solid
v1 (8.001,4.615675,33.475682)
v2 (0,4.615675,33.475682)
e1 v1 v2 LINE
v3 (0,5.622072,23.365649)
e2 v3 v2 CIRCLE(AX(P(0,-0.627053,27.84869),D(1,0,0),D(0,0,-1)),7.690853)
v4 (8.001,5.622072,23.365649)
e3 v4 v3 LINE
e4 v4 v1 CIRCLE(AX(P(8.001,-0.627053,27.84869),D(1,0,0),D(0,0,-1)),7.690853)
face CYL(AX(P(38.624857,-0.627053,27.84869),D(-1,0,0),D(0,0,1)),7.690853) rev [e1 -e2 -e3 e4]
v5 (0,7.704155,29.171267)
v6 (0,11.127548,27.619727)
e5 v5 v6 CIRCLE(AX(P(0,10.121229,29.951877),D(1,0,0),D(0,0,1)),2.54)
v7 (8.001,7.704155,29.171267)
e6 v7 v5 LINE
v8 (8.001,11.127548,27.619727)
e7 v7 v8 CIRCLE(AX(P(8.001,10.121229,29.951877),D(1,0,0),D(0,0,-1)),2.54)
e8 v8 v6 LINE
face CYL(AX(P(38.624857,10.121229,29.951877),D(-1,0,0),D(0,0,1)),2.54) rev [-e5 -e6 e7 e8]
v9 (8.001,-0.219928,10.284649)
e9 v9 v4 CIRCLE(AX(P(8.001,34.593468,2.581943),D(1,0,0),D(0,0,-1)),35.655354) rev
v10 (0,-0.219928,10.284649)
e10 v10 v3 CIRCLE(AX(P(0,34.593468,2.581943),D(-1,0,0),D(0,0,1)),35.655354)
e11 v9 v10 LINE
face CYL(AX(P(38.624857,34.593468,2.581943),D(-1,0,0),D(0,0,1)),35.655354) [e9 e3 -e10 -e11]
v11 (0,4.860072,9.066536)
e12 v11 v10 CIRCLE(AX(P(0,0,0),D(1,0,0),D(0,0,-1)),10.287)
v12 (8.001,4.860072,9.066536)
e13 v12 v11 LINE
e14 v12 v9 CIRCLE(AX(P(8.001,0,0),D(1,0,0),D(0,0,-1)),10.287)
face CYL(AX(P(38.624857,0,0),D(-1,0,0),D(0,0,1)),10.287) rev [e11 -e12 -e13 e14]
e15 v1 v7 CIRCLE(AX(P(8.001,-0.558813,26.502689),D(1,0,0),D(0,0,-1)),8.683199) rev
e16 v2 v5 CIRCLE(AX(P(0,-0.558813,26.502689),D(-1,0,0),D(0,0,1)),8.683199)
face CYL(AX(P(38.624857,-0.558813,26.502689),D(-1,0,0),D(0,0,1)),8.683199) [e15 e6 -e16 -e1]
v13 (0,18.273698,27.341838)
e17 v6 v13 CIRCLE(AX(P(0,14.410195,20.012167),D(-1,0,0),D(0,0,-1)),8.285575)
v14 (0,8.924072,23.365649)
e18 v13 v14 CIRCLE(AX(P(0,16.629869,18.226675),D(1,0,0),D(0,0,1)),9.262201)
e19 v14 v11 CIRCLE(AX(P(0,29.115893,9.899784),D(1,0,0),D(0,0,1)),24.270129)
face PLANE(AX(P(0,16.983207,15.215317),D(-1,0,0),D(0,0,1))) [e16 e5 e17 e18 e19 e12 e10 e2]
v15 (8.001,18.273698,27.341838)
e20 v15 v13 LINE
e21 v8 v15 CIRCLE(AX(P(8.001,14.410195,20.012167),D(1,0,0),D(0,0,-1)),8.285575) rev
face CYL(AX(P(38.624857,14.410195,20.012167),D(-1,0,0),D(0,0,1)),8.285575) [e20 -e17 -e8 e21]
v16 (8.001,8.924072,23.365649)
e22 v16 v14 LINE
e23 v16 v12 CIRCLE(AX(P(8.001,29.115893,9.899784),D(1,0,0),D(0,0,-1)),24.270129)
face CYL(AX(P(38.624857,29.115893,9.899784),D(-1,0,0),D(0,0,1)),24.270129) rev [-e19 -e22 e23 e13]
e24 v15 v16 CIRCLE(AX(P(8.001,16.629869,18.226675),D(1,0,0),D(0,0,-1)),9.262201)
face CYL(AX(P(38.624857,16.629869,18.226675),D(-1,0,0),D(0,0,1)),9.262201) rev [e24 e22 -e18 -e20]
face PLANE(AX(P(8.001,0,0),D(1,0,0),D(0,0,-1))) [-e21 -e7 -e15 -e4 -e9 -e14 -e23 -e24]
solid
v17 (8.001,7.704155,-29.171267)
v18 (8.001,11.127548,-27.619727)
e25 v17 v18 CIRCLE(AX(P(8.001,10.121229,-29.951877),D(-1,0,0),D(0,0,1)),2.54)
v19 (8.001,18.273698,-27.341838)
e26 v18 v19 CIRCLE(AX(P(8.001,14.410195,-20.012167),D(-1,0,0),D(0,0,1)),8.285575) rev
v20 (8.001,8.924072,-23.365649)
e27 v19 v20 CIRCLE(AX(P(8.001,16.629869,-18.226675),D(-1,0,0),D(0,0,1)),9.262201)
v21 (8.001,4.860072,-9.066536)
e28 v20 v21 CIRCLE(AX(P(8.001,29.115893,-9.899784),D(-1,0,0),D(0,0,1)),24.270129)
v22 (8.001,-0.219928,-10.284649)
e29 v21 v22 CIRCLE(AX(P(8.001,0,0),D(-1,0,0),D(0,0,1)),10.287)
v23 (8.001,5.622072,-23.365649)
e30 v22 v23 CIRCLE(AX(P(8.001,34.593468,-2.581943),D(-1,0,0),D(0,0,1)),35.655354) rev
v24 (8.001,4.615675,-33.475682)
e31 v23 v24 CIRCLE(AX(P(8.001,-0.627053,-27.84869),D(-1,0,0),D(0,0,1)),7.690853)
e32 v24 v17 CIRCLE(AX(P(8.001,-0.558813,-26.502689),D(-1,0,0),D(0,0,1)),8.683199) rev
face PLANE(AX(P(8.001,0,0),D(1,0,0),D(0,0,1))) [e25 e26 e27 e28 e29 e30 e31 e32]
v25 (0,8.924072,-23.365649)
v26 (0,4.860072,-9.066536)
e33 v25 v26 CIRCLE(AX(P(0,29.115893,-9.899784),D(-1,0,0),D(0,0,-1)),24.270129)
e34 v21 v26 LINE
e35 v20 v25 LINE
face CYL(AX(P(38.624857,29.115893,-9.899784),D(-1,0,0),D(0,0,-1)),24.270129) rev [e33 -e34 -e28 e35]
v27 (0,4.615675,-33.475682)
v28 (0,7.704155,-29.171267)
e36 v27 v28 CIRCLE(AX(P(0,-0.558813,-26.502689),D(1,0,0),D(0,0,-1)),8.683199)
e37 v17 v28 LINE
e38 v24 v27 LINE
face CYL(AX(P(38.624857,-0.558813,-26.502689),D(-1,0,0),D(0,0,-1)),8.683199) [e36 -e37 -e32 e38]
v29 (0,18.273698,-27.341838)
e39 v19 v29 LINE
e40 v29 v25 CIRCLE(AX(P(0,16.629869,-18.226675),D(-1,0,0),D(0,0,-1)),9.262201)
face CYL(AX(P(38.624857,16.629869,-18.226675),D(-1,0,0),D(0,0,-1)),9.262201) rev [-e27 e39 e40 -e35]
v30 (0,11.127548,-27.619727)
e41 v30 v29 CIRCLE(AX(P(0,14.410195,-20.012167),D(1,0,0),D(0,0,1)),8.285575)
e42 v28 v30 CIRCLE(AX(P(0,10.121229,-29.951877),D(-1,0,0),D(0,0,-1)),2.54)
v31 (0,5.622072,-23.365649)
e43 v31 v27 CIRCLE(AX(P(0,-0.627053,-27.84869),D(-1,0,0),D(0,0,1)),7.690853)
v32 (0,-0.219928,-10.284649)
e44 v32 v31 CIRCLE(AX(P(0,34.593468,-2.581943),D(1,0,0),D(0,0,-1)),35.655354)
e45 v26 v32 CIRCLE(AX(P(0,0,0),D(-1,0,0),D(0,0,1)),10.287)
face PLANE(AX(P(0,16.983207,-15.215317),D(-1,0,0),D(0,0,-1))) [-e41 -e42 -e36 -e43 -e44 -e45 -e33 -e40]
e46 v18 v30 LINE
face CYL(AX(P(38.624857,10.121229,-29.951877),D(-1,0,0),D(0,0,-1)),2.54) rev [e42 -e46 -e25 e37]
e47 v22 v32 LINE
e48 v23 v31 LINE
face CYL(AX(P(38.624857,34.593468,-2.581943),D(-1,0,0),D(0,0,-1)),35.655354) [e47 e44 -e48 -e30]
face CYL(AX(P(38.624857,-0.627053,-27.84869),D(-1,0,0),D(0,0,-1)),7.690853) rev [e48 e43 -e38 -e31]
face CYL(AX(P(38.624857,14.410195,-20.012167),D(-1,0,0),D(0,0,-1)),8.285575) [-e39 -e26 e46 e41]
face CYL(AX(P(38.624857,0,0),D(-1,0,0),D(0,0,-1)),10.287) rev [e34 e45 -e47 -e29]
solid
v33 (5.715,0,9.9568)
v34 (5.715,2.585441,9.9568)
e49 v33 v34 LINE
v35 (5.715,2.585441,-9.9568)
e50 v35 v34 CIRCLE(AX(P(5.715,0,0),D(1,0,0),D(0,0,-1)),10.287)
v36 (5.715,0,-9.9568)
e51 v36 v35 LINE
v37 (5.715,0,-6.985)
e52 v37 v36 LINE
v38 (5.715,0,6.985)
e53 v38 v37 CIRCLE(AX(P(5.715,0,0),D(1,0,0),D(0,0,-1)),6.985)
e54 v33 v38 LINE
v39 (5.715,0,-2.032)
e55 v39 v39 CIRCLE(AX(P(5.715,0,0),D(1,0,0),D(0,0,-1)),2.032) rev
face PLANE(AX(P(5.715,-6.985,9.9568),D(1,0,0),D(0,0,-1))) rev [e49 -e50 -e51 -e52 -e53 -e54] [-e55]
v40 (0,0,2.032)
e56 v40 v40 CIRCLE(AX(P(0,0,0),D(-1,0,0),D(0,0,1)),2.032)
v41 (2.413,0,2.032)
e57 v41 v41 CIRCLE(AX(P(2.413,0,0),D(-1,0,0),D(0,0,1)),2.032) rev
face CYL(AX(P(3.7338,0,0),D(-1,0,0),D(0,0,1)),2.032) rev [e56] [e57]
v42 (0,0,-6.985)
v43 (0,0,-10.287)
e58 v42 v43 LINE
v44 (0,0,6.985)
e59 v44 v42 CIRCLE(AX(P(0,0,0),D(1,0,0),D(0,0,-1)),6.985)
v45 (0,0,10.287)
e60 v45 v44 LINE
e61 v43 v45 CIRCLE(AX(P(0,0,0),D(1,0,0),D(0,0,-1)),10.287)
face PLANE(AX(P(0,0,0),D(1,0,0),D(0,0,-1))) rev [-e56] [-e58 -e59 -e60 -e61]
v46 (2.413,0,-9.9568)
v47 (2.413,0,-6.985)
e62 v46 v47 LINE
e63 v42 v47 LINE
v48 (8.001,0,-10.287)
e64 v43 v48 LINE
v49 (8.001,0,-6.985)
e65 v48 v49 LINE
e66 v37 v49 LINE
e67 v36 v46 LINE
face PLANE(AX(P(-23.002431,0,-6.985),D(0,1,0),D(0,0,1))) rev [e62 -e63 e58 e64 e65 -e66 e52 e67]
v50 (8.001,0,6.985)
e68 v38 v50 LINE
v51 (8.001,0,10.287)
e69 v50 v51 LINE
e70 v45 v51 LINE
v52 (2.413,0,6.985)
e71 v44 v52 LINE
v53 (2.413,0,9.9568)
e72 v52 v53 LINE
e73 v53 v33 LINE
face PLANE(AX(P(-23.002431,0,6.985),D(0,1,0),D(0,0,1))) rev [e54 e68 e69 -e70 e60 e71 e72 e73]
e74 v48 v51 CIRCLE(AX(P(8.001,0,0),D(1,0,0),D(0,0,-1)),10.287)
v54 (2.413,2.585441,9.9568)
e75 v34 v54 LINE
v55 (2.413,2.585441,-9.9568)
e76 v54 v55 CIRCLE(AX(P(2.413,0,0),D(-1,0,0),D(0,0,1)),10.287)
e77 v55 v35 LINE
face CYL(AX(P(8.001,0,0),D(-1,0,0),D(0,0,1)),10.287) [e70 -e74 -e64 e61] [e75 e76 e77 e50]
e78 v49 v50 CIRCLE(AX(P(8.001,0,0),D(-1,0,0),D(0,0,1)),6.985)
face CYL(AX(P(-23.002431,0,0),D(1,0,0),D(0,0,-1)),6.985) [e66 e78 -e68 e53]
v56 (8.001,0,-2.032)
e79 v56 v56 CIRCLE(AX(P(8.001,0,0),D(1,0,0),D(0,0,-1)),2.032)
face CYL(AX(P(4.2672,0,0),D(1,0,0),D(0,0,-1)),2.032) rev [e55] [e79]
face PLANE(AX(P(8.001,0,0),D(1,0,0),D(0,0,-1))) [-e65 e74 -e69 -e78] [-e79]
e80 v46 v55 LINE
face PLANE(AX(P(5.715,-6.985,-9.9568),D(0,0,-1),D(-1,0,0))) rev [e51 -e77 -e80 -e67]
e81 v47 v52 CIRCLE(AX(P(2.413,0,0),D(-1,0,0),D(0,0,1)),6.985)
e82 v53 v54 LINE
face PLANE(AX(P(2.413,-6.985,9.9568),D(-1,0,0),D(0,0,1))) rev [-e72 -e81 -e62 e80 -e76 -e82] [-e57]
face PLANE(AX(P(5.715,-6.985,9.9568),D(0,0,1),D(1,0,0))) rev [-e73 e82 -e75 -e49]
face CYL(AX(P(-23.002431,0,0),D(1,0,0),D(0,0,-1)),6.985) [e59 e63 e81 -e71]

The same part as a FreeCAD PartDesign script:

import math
import FreeCAD as App
import Part
import Sketcher
Q = App.Units.Quantity

doc = App.newDocument("Part")
body = doc.addObject("PartDesign::Body", "Body")

sketch1 = doc.addObject("Sketcher::SketchObject", "Sketch")
body.addObject(sketch1)
sketch1.AttachmentSupport = (doc.YZ_Plane, [""])
sketch1.MapMode = "FlatFace"
sketch1.addGeometry(Part.Circle(App.Vector(0, 0, 0), App.Vector(0, 0, 1), 10), False)
sketch1.addConstraint([
    Sketcher.Constraint("Coincident", 0, 3, -1, 1),
    Sketcher.Constraint("Diameter", 0, Q("0.81 in")),
])
pad1 = doc.addObject("PartDesign::Pad", "Pad")
body.addObject(pad1)
pad1.Profile = sketch1
pad1.Length = Q("0.315 in")

sketch2 = doc.addObject("Sketcher::SketchObject", "Sketch001")
body.addObject(sketch2)
sketch2.AttachmentSupport = (doc.YZ_Plane, [""])
sketch2.MapMode = "FlatFace"
sketch2.AttachmentOffset = App.Placement(App.Vector(0, 0, 0.315 * 25.4), App.Rotation())
sketch2.addGeometry(Part.Circle(App.Vector(0, 0, 0), App.Vector(0, 0, 1), 2), False)
sketch2.addConstraint([
    Sketcher.Constraint("Coincident", 0, 3, -1, 1),
    Sketcher.Constraint("Diameter", 0, Q("0.16 in")),
])
pocket1 = doc.addObject("PartDesign::Pocket", "Pocket")
body.addObject(pocket1)
pocket1.Profile = sketch2
pocket1.Length = Q("0.147 in")

sketch3 = doc.addObject("Sketcher::SketchObject", "Sketch002")
body.addObject(sketch3)
sketch3.AttachmentSupport = (doc.YZ_Plane, [""])
sketch3.MapMode = "FlatFace"
sketch3.AttachmentOffset = App.Placement(App.Vector(0, 0, 0.147 * 25.4), App.Rotation())
sketch3.addGeometry(Part.Circle(App.Vector(0, 0, 0), App.Vector(0, 0, 1), 2), False)
sketch3.addConstraint([
    Sketcher.Constraint("Coincident", 0, 3, -1, 1),
    Sketcher.Constraint("Diameter", 0, Q("0.16 in")),
])
pocket2 = doc.addObject("PartDesign::Pocket", "Pocket001")
body.addObject(pocket2)
pocket2.Profile = sketch3
pocket2.Length = Q("0.147 in")

sketch4 = doc.addObject("Sketcher::SketchObject", "Sketch003")
body.addObject(sketch4)
sketch4.AttachmentSupport = (doc.YZ_Plane, [""])
sketch4.MapMode = "FlatFace"
sketch4.addGeometry([
    Part.LineSegment(App.Vector(0, 7, 0), App.Vector(0, 10.3, 0)),
    Part.ArcOfCircle(Part.Circle(App.Vector(0, 0, 0), App.Vector(0, 0, 1), 10.3), math.radians(90), math.radians(270)),
    Part.LineSegment(App.Vector(0, -10.3, 0), App.Vector(0, -7, 0)),
    Part.ArcOfCircle(Part.Circle(App.Vector(0, 0, 0), App.Vector(0, 0, 1), 7), math.radians(90), math.radians(270)),
], False)
sketch4.addConstraint([
    Sketcher.Constraint("Coincident", 0, 2, 1, 1),
    Sketcher.Constraint("Coincident", 1, 2, 2, 1),
    Sketcher.Constraint("Coincident", 2, 2, 3, 2),
    Sketcher.Constraint("Coincident", 3, 1, 0, 1),
    Sketcher.Constraint("Vertical", 0),
    Sketcher.Constraint("Vertical", 2),
    Sketcher.Constraint("Coincident", 1, 3, -1, 1),
    Sketcher.Constraint("Coincident", 3, 3, -1, 1),
    Sketcher.Constraint("PointOnObject", 0, 2, -2),
    Sketcher.Constraint("PointOnObject", 1, 2, -2),
    Sketcher.Constraint("Radius", 1, Q("0.405 in")),
    Sketcher.Constraint("Radius", 3, Q("0.275 in")),
])
pocket3 = doc.addObject("PartDesign::Pocket", "Pocket002")
body.addObject(pocket3)
pocket3.Profile = sketch4
pocket3.Length = Q("0.315 in")
pocket3.Reversed = True

sketch5 = doc.addObject("Sketcher::SketchObject", "Sketch004")
body.addObject(sketch5)
sketch5.AttachmentSupport = (doc.XZ_Plane, [""])
sketch5.MapMode = "FlatFace"
sketch5.AttachmentOffset = App.Placement(App.Vector(0, 0, -0.405 * 25.4), App.Rotation())
sketch5.addGeometry([
    Part.LineSegment(App.Vector(2.4, -10, 0), App.Vector(2.4, 10, 0)),
    Part.LineSegment(App.Vector(2.4, 10, 0), App.Vector(5.7, 10, 0)),
    Part.LineSegment(App.Vector(5.7, 10, 0), App.Vector(5.7, -10, 0)),
    Part.LineSegment(App.Vector(5.7, -10, 0), App.Vector(2.4, -10, 0)),
], False)
sketch5.addConstraint([
    Sketcher.Constraint("Coincident", 0, 2, 1, 1),
    Sketcher.Constraint("Coincident", 1, 2, 2, 1),
    Sketcher.Constraint("Coincident", 2, 2, 3, 1),
    Sketcher.Constraint("Coincident", 3, 2, 0, 1),
    Sketcher.Constraint("Vertical", 0),
    Sketcher.Constraint("Horizontal", 1),
    Sketcher.Constraint("Vertical", 2),
    Sketcher.Constraint("Horizontal", 3),
    Sketcher.Constraint("DistanceX", 1, 1, 1, 2, Q("0.13 in")),
    Sketcher.Constraint("DistanceY", 0, 1, 0, 2, Q("0.784 in")),
    Sketcher.Constraint("DistanceX", -1, 1, 0, 2, Q("0.095 in")),
    Sketcher.Constraint("DistanceY", -1, 1, 0, 2, Q("0.392 in")),
])
pocket4 = doc.addObject("PartDesign::Pocket", "Pocket003")
body.addObject(pocket4)
pocket4.Profile = sketch5
pocket4.Type = "ThroughAll"
pocket4.Reversed = True
body2 = doc.addObject("PartDesign::Body", "Body001")

sketch6 = doc.addObject("Sketcher::SketchObject", "Sketch005")
body2.addObject(sketch6)
sketch6.AttachmentSupport = (doc.getObject("YZ_Plane001"), [""])
sketch6.MapMode = "FlatFace"
sketch6.addGeometry([
    Part.ArcOfCircle(Part.Circle(App.Vector(0, 0, 0), App.Vector(0, 0, 1), 10.3), math.radians(62), math.radians(91)),
    Part.ArcOfCircle(Part.Circle(App.Vector(34.6, 2.6, 0), App.Vector(0, 0, 1), 35.7), math.radians(144), math.radians(168)),
    Part.ArcOfCircle(Part.Circle(App.Vector(-0.6, 27.8, 0), App.Vector(0, 0, 1), 7.7), math.radians(-36), math.radians(47)),
    Part.ArcOfCircle(Part.Circle(App.Vector(-0.6, 26.5, 0), App.Vector(0, 0, 1), 8.7), math.radians(18), math.radians(53)),
    Part.ArcOfCircle(Part.Circle(App.Vector(10.1, 30, 0), App.Vector(0, 0, 1), 2.5), math.radians(-162), math.radians(-67)),
    Part.ArcOfCircle(Part.Circle(App.Vector(14.4, 20, 0), App.Vector(0, 0, 1), 8.3), math.radians(62), math.radians(113)),
    Part.ArcOfCircle(Part.Circle(App.Vector(16.6, 18.2, 0), App.Vector(0, 0, 1), 9.3), math.radians(80), math.radians(146)),
    Part.ArcOfCircle(Part.Circle(App.Vector(29.1, 9.9, 0), App.Vector(0, 0, 1), 24.3), math.radians(146), math.radians(182)),
], False)
sketch6.addConstraint([
    Sketcher.Constraint("Coincident", 0, 2, 1, 2),
    Sketcher.Constraint("Tangent", 1, 1, 2, 1),
    Sketcher.Constraint("Coincident", 2, 2, 3, 2),
    Sketcher.Constraint("Tangent", 3, 1, 4, 1),
    Sketcher.Constraint("Tangent", 4, 2, 5, 2),
    Sketcher.Constraint("Coincident", 5, 1, 6, 1),
    Sketcher.Constraint("Tangent", 6, 2, 7, 1),
    Sketcher.Constraint("Coincident", 7, 2, 0, 1),
    Sketcher.Constraint("Coincident", 0, 3, -1, 1),
    Sketcher.Constraint("Horizontal", 1, 1, 6, 2),
    Sketcher.Constraint("Radius", 4, Q("0.1 in")),
    Sketcher.Constraint("Radius", 0, Q("0.405 in")),
    Sketcher.Constraint("DistanceX", 0, 2, 7, 2, Q("0.2 in")),
    Sketcher.Constraint("Radius", 3, Q("8.683199 mm")),
    Sketcher.Constraint("Radius", 6, Q("9.262201 mm")),
    Sketcher.Constraint("DistanceX", 1, 1, 6, 2, Q("0.13 in")),
    Sketcher.Constraint("DistanceX", 7, 2, 1, 1, Q("0.03 in")),
    Sketcher.Constraint("Radius", 7, Q("24.270129 mm")),
    Sketcher.Constraint("Radius", 1, Q("35.655353 mm")),
    Sketcher.Constraint("Radius", 2, Q("7.690853 mm")),
    Sketcher.Constraint("Radius", 5, Q("8.285575 mm")),
    Sketcher.Constraint("DistanceX", -1, 1, 5, 1, Q("18.273698 mm")),
    Sketcher.Constraint("DistanceY", 3, 3, 2, 3, Q("1.346001 mm")),
    Sketcher.Constraint("DistanceY", 6, 3, 4, 3, Q("11.725202 mm")),
    Sketcher.Constraint("DistanceX", 6, 3, 1, 3, Q("17.963599 mm")),
    Sketcher.Constraint("DistanceX", 5, 3, 7, 3, Q("14.705698 mm")),
    Sketcher.Constraint("DistanceX", -1, 1, 4, 3, Q("10.121229 mm")),
])
pad2 = doc.addObject("PartDesign::Pad", "Pad001")
body2.addObject(pad2)
pad2.Profile = sketch6
pad2.Length = Q("0.315 in")
body3 = doc.addObject("PartDesign::Body", "Body002")
doc.recompute()

mirroring = doc.addObject("Part::Mirroring", "Mirroring")
mirroring.Source = body2
mirroring.Base = App.Vector(0, 0, 0)
mirroring.Normal = App.Vector(0, 0, 1)
body3.BaseFeature = mirroring
doc.recompute()
mirroring.Visibility = False

doc.recompute()
